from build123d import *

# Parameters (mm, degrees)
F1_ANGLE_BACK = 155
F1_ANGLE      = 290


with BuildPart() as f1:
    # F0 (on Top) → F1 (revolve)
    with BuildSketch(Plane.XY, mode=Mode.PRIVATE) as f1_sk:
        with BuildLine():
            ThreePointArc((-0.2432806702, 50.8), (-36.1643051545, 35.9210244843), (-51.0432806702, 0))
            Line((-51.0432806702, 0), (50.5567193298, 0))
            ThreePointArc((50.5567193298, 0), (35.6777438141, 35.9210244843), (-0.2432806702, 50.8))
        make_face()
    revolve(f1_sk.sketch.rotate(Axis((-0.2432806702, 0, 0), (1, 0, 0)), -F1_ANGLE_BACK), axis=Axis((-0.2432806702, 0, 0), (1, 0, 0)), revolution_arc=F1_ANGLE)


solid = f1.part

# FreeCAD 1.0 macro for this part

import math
import FreeCAD as App
import Part
import Sketcher

V = App.Vector
Q = App.Units.Quantity

doc = App.newDocument("Part")
body = doc.addObject("PartDesign::Body", "Body")

# Sketch on an angled plane
sketch1 = doc.addObject("Sketcher::SketchObject", "Sketch")
body.addObject(sketch1)
sketch1.Placement = App.Placement(V(0, 0, 0), App.Rotation(V(1, 0, 0), V(0, -0.906307787, -0.422618262), V(0, 0.422618262, -0.906307787), "ZXY"))
sketch1.addGeometry([
    Part.ArcOfCircle(Part.Circle(V(0, 0, 0), V(0, 0, 1), 51), math.radians(90), math.radians(180)),
    Part.LineSegment(V(-51, 0, 0), V(51, 0, 0)),
    Part.ArcOfCircle(Part.Circle(V(0, 0, 0), V(0, 0, 1), 51), math.radians(0), math.radians(90)),
], False)
sketch1.addConstraint([
    Sketcher.Constraint("Coincident", 0, 2, 1, 1),
    Sketcher.Constraint("Coincident", 1, 2, 2, 1),
    Sketcher.Constraint("Tangent", 2, 2, 0, 1),
    Sketcher.Constraint("Horizontal", 1),
    Sketcher.Constraint("Equal", 0, 2),
    Sketcher.Constraint("PointOnObject", 0, 3, -1),
    Sketcher.Constraint("PointOnObject", 0, 2, -1),
    Sketcher.Constraint("Vertical", 0, 3, 2, 2),
    Sketcher.Constraint("Radius", 0, Q("2 in")),
    Sketcher.Constraint("DistanceX", 0, 3, -1, 1, 0.243281),
])
revolution = doc.addObject("PartDesign::Revolution", "Revolution")
body.addObject(revolution)
revolution.Profile = sketch1
revolution.ReferenceAxis = (sketch1, ["H_Axis"])
revolution.Angle = 290

doc.recompute()
